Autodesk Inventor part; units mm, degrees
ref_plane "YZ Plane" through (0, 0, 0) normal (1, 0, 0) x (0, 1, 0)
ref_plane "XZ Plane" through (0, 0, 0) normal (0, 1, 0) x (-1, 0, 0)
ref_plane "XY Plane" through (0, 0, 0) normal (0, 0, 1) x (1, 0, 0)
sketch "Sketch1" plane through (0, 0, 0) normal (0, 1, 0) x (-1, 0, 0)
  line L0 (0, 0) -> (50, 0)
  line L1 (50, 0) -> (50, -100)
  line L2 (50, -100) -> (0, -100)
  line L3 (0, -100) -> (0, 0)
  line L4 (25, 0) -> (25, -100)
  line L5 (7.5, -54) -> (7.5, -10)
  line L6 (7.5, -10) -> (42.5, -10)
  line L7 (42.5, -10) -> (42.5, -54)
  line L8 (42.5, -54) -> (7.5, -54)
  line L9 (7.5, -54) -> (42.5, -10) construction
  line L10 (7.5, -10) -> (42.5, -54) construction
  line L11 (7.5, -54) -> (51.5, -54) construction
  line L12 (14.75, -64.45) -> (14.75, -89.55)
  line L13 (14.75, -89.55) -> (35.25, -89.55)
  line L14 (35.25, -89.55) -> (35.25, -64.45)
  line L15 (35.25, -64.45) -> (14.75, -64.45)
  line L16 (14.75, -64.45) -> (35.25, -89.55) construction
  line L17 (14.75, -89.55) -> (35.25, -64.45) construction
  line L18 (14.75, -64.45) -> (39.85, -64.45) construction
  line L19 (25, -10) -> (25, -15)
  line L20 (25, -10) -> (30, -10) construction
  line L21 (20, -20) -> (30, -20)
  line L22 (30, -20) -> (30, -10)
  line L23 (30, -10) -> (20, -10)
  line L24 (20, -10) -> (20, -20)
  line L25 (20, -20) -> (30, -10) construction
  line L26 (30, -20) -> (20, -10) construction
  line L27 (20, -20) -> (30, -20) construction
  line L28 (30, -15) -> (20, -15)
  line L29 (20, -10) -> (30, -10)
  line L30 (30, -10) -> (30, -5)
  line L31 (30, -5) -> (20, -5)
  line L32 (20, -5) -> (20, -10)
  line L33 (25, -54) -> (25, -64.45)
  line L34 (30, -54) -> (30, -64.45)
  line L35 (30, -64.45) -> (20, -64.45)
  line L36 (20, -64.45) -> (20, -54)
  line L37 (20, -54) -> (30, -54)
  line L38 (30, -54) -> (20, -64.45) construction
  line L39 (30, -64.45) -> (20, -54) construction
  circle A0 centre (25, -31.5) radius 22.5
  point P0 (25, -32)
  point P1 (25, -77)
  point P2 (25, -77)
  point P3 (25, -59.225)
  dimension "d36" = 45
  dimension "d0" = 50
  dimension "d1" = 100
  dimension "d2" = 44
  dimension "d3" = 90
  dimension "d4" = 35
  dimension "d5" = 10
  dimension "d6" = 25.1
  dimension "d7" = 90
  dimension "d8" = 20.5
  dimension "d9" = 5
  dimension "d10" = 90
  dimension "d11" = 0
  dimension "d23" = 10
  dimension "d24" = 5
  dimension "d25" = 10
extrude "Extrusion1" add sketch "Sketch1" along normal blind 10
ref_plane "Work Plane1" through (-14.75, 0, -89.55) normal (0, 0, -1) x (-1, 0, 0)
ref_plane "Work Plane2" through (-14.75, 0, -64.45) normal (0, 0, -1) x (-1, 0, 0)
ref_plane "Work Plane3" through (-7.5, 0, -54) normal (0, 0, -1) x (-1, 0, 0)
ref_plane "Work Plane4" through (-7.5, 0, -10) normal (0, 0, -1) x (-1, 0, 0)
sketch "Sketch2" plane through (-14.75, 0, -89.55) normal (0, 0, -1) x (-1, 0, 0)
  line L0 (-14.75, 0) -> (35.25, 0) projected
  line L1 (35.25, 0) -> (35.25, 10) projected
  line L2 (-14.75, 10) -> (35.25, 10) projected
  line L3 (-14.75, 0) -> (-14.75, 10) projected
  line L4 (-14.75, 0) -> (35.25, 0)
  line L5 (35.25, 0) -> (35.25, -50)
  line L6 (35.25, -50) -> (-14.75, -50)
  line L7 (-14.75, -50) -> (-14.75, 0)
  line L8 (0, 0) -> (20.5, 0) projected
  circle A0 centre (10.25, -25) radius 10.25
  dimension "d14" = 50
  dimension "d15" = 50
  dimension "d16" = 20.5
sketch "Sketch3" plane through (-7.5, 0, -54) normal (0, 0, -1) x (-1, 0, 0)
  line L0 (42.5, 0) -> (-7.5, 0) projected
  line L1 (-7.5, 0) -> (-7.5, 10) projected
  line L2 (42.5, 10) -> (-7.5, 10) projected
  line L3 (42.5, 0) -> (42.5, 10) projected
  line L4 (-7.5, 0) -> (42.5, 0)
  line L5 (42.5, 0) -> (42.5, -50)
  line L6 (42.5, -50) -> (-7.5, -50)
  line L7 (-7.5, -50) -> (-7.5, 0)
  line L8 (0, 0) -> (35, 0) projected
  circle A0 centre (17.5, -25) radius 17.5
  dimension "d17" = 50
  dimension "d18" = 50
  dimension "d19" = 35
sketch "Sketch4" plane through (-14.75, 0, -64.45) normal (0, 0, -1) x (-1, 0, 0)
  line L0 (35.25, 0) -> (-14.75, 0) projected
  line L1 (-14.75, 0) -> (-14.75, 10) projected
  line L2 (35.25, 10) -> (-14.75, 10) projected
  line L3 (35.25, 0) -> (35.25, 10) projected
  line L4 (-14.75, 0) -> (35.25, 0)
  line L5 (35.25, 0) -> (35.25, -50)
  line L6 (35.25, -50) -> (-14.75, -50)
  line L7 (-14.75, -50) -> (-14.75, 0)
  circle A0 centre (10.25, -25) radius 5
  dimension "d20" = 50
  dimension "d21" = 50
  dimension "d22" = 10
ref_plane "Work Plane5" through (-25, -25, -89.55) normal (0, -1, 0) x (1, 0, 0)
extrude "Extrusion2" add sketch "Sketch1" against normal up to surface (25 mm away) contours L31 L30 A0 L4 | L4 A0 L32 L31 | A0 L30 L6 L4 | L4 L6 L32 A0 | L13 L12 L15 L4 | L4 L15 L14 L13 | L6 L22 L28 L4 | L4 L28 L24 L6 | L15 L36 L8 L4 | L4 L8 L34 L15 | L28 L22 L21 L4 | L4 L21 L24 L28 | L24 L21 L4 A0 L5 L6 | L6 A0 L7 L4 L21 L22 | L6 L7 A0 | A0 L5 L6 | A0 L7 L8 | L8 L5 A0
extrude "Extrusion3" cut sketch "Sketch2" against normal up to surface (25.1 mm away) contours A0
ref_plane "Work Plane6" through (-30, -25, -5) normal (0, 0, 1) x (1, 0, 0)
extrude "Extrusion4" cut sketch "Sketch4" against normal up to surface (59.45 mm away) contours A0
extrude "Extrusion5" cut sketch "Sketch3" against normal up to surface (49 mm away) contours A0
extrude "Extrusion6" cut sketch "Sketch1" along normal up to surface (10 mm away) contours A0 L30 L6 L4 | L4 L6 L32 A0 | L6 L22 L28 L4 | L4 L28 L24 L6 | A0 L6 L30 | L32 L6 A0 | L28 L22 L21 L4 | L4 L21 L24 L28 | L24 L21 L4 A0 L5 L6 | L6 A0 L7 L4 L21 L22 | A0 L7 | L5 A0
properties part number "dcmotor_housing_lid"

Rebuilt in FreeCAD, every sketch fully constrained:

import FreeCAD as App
import Part
import Sketcher

V = App.Vector


def add_polygon(sketch, points):
    """Adds a closed chain of lines whose ends are joined by coincident constraints."""
    first, n = sketch.GeometryCount, len(points)
    for a, b in zip(points, points[1:] + points[:1]):
        sketch.addGeometry(Part.LineSegment(App.Vector(*a, 0), App.Vector(*b, 0)), False)
    for i in range(n):
        sketch.addConstraint(Sketcher.Constraint("Coincident", first + i, 2, first + (i + 1) % n, 1))

doc = App.newDocument("Part")
body = doc.addObject("PartDesign::Body", "Body")

sketch1 = body.newObject("Sketcher::SketchObject", "Sketch")
sketch1.AttachmentSupport = (doc.getObject("XZ_Plane"), [""])
sketch1.MapMode = "FlatFace"
add_polygon(sketch1, [(0, 0), (0, -100), (-50, -100), (-50, 0)])
sketch1.addConstraint([
    Sketcher.Constraint("Vertical", 0),
    Sketcher.Constraint("Horizontal", 1),
    Sketcher.Constraint("Vertical", 2),
    Sketcher.Constraint("Horizontal", 3),
    Sketcher.Constraint("Coincident", 3, 2, -1, 1),
    Sketcher.Constraint("DistanceX", 1, 2, 1, 1, 50.0),
    Sketcher.Constraint("DistanceY", 0, 2, 0, 1, 100.0),
])
pad1 = body.newObject("PartDesign::Pad", "Pad")
pad1.Profile = sketch1
pad1.Length = 10
pad1.Reversed = True

sketch2 = body.newObject("Sketcher::SketchObject", "Sketch001")
sketch2.AttachmentSupport = (doc.getObject("XZ_Plane"), [""])
sketch2.MapMode = "FlatFace"
add_polygon(sketch2, [(-30, -5), (-20, -5), (-20, -10), (-8, -10), (-8, -54), (-20, -54), (-20, -64), (-15, -64), (-15, -90), (-35, -90), (-35, -64), (-30, -64), (-30, -54), (-42, -54), (-42, -10), (-30, -10)])
sketch2.addConstraint([
    Sketcher.Constraint("Horizontal", 0),
    Sketcher.Constraint("Vertical", 1),
    Sketcher.Constraint("Horizontal", 2),
    Sketcher.Constraint("Vertical", 3),
    Sketcher.Constraint("Horizontal", 4),
    Sketcher.Constraint("Vertical", 5),
    Sketcher.Constraint("Horizontal", 6),
    Sketcher.Constraint("Vertical", 7),
    Sketcher.Constraint("Horizontal", 8),
    Sketcher.Constraint("Vertical", 9),
    Sketcher.Constraint("Horizontal", 10),
    Sketcher.Constraint("Vertical", 11),
    Sketcher.Constraint("Horizontal", 12),
    Sketcher.Constraint("Vertical", 13),
    Sketcher.Constraint("Horizontal", 14),
    Sketcher.Constraint("Vertical", 15),
    Sketcher.Constraint("Horizontal", 6, 2, 9, 2),
    Sketcher.Constraint("Horizontal", 4, 2, 11, 2),
    Sketcher.Constraint("Horizontal", 2, 2, 13, 2),
    Sketcher.Constraint("Vertical", 1, 2, 4, 2),
    Sketcher.Constraint("Vertical", 11, 2, 14, 2),
    Sketcher.Constraint("Equal", 6, 10),
    Sketcher.Constraint("Equal", 4, 12),
    Sketcher.Constraint("DistanceX", 0, 1, 0, 2, 10.0),
    Sketcher.Constraint("DistanceY", 1, 2, 1, 1, 5.0),
    Sketcher.Constraint("DistanceY", 3, 2, 3, 1, 44.0),
    Sketcher.Constraint("DistanceX", 8, 2, 8, 1, 20.5),
    Sketcher.Constraint("DistanceY", 7, 2, 7, 1, 25.1),
    Sketcher.Constraint("DistanceY", 0, 2, -1, 1, 5.0),
    Sketcher.Constraint("DistanceX", 13, 2, 2, 2, 35.0),
    Sketcher.Constraint("DistanceX", 0, 2, -1, 1, 20.0),
    Sketcher.Constraint("DistanceY", 5, 2, 5, 1, 10.45),
])
pad2 = body.newObject("PartDesign::Pad", "Pad001")
pad2.Profile = sketch2
pad2.Length = 25

sketch3 = body.newObject("Sketcher::SketchObject", "Sketch002")
sketch3.AttachmentSupport = (doc.getObject("XY_Plane"), [""])
sketch3.MapMode = "FlatFace"
sketch3.AttachmentOffset = App.Placement(V(0, 0, -89.55), App.Rotation())
sketch3.addGeometry(Part.Circle(V(-25, -25, 0), V(0, 0, 1), 10), False)
sketch3.addConstraint([
    Sketcher.Constraint("Diameter", 0, 20.5),
    Sketcher.Constraint("DistanceX", 0, 3, -1, 1, 25.0),
    Sketcher.Constraint("DistanceY", 0, 3, -1, 1, 25.0),
])
pocket1 = body.newObject("PartDesign::Pocket", "Pocket")
pocket1.Profile = sketch3
pocket1.Length = 25.1
pocket1.Reversed = True

sketch4 = body.newObject("Sketcher::SketchObject", "Sketch003")
sketch4.AttachmentSupport = (doc.getObject("XY_Plane"), [""])
sketch4.MapMode = "FlatFace"
sketch4.AttachmentOffset = App.Placement(V(0, 0, -64.45), App.Rotation())
sketch4.addGeometry(Part.Circle(V(-25, -25, 0), V(0, 0, 1), 5), False)
sketch4.addConstraint([
    Sketcher.Constraint("Diameter", 0, 10.0),
    Sketcher.Constraint("DistanceX", 0, 3, -1, 1, 25.0),
    Sketcher.Constraint("DistanceY", 0, 3, -1, 1, 25.0),
])
pocket2 = body.newObject("PartDesign::Pocket", "Pocket001")
pocket2.Profile = sketch4
pocket2.Length = 59.45
pocket2.Reversed = True

sketch5 = body.newObject("Sketcher::SketchObject", "Sketch004")
sketch5.AttachmentSupport = (doc.getObject("XY_Plane"), [""])
sketch5.MapMode = "FlatFace"
sketch5.AttachmentOffset = App.Placement(V(0, 0, -54), App.Rotation())
sketch5.addGeometry(Part.Circle(V(-25, -25, 0), V(0, 0, 1), 18), False)
sketch5.addConstraint([
    Sketcher.Constraint("Diameter", 0, 35.0),
    Sketcher.Constraint("DistanceX", 0, 3, -1, 1, 25.0),
    Sketcher.Constraint("DistanceY", 0, 3, -1, 1, 25.0),
])
pocket3 = body.newObject("PartDesign::Pocket", "Pocket002")
pocket3.Profile = sketch5
pocket3.Length = 49
pocket3.Reversed = True

sketch6 = body.newObject("Sketcher::SketchObject", "Sketch005")
sketch6.AttachmentSupport = (doc.getObject("XZ_Plane"), [""])
sketch6.MapMode = "FlatFace"
sketch6.addGeometry(Part.Circle(V(-25, -32, 0), V(0, 0, 1), 22), False)
sketch6.addConstraint([
    Sketcher.Constraint("Diameter", 0, 45.0),
    Sketcher.Constraint("DistanceX", 0, 3, -1, 1, 25.0),
    Sketcher.Constraint("DistanceY", 0, 3, -1, 1, 31.5),
])
pocket4 = body.newObject("PartDesign::Pocket", "Pocket003")
pocket4.Profile = sketch6
pocket4.Length = 10

doc.recompute()
